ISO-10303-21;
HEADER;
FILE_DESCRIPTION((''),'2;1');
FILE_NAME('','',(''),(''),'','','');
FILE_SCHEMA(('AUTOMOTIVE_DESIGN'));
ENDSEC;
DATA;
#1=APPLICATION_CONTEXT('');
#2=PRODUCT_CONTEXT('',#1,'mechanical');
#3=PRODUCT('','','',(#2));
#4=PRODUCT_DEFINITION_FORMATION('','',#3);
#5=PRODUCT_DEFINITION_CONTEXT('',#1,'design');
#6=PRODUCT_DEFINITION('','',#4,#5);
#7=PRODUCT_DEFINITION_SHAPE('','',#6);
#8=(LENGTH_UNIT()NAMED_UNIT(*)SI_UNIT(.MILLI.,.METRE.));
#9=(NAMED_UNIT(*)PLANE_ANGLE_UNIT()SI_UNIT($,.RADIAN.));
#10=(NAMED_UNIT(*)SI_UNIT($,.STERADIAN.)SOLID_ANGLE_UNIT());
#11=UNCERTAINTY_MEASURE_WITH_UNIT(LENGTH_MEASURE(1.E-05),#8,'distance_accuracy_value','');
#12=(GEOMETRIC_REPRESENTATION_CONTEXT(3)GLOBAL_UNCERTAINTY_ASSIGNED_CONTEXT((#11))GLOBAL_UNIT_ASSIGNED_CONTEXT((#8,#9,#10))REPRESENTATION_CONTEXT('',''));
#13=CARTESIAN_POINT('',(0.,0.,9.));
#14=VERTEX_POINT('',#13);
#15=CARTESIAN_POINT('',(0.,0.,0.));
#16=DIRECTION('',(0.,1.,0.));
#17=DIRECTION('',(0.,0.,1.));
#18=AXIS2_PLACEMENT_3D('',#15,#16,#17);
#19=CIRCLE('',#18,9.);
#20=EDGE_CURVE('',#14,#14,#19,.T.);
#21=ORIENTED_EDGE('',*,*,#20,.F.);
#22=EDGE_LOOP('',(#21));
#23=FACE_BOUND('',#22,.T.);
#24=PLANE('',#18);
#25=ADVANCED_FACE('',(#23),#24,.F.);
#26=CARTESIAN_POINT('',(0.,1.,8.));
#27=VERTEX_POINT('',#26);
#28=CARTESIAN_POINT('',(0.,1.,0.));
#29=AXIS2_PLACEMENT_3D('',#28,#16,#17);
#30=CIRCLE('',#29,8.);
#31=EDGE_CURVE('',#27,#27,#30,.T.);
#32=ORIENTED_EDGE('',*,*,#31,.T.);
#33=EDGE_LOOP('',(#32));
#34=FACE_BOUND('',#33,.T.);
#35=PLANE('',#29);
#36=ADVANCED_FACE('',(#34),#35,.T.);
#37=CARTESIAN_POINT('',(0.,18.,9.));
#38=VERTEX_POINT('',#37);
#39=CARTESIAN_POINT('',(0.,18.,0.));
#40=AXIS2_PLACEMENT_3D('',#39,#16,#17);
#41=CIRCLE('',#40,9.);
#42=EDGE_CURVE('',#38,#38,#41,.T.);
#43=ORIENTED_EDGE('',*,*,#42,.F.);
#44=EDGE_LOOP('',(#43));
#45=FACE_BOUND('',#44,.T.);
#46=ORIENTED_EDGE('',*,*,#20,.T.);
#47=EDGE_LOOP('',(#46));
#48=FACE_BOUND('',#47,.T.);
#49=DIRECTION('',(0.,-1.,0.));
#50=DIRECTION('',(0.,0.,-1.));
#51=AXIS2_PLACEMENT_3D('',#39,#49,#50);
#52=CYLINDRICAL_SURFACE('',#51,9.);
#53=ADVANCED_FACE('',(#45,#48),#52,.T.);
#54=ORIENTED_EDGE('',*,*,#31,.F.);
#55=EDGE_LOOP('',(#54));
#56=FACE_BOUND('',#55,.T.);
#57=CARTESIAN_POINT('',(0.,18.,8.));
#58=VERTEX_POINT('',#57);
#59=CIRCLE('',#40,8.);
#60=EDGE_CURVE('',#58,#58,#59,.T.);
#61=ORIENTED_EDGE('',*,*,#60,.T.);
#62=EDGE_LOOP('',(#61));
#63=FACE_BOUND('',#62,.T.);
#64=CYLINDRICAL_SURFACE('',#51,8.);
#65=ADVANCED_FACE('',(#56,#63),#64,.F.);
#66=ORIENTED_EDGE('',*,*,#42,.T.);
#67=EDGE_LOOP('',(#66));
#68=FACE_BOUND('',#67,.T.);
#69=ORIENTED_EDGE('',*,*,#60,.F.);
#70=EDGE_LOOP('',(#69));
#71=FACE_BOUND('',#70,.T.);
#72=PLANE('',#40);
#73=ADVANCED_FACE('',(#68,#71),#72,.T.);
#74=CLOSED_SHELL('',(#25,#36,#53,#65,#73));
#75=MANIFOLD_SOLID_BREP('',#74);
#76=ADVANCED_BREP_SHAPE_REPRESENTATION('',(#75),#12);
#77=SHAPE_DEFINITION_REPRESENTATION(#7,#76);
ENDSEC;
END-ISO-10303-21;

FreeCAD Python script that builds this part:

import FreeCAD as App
import Part
import Sketcher

V = App.Vector
Q = App.Units.Quantity


def faces_at(feature, points):
    """Names of the faces that lie closest to the given points."""
    faces = feature.Shape.Faces
    near = lambda p: min(range(len(faces)), key=lambda i: faces[i].distToShape(Part.Vertex(*p))[0])
    return sorted({f"Face{near(p) + 1}" for p in points})

doc = App.newDocument("Part")
params = doc.addObject("Spreadsheet::Sheet", "Params")
for row, (alias, value) in enumerate([
    ("sketch1_diameter", "18 mm"),
    ("pad1_length", "18 mm"),
    ("thickness_wall", "1 mm"),
], start=1):
    params.set(f"A{row}", alias)
    params.set(f"B{row}", "=" + value)
    params.setAlias(f"B{row}", alias)

body = doc.addObject("PartDesign::Body", "Body")

# Sketch on XZ plane
sketch1 = body.newObject("Sketcher::SketchObject", "Sketch")
sketch1.AttachmentSupport = (doc.getObject("XZ_Plane"), [""])
sketch1.MapMode = "FlatFace"
sketch1.addGeometry(Part.Circle(V(0, 0, 0), V(0, 0, 1), 9), False)
sketch1.addConstraint([
    Sketcher.Constraint("Coincident", 0, 3, -1, 1),
    Sketcher.Constraint("Diameter", 0, Q("18 mm")),
])
sketch1.setExpression("Constraints[1]", "Params.sketch1_diameter")
pad1 = body.newObject("PartDesign::Pad", "Pad")
pad1.Profile = sketch1
pad1.setExpression("Length", "Params.pad1_length")
pad1.Reversed = True
doc.recompute()

thickness = body.newObject("PartDesign::Thickness", "Thickness")
thickness.Base = (pad1, faces_at(pad1, [(0, 18, 0)]))
thickness.setExpression("Value", "Params.thickness_wall")
thickness.Reversed = True
thickness.Join = "Intersection"

doc.recompute()
